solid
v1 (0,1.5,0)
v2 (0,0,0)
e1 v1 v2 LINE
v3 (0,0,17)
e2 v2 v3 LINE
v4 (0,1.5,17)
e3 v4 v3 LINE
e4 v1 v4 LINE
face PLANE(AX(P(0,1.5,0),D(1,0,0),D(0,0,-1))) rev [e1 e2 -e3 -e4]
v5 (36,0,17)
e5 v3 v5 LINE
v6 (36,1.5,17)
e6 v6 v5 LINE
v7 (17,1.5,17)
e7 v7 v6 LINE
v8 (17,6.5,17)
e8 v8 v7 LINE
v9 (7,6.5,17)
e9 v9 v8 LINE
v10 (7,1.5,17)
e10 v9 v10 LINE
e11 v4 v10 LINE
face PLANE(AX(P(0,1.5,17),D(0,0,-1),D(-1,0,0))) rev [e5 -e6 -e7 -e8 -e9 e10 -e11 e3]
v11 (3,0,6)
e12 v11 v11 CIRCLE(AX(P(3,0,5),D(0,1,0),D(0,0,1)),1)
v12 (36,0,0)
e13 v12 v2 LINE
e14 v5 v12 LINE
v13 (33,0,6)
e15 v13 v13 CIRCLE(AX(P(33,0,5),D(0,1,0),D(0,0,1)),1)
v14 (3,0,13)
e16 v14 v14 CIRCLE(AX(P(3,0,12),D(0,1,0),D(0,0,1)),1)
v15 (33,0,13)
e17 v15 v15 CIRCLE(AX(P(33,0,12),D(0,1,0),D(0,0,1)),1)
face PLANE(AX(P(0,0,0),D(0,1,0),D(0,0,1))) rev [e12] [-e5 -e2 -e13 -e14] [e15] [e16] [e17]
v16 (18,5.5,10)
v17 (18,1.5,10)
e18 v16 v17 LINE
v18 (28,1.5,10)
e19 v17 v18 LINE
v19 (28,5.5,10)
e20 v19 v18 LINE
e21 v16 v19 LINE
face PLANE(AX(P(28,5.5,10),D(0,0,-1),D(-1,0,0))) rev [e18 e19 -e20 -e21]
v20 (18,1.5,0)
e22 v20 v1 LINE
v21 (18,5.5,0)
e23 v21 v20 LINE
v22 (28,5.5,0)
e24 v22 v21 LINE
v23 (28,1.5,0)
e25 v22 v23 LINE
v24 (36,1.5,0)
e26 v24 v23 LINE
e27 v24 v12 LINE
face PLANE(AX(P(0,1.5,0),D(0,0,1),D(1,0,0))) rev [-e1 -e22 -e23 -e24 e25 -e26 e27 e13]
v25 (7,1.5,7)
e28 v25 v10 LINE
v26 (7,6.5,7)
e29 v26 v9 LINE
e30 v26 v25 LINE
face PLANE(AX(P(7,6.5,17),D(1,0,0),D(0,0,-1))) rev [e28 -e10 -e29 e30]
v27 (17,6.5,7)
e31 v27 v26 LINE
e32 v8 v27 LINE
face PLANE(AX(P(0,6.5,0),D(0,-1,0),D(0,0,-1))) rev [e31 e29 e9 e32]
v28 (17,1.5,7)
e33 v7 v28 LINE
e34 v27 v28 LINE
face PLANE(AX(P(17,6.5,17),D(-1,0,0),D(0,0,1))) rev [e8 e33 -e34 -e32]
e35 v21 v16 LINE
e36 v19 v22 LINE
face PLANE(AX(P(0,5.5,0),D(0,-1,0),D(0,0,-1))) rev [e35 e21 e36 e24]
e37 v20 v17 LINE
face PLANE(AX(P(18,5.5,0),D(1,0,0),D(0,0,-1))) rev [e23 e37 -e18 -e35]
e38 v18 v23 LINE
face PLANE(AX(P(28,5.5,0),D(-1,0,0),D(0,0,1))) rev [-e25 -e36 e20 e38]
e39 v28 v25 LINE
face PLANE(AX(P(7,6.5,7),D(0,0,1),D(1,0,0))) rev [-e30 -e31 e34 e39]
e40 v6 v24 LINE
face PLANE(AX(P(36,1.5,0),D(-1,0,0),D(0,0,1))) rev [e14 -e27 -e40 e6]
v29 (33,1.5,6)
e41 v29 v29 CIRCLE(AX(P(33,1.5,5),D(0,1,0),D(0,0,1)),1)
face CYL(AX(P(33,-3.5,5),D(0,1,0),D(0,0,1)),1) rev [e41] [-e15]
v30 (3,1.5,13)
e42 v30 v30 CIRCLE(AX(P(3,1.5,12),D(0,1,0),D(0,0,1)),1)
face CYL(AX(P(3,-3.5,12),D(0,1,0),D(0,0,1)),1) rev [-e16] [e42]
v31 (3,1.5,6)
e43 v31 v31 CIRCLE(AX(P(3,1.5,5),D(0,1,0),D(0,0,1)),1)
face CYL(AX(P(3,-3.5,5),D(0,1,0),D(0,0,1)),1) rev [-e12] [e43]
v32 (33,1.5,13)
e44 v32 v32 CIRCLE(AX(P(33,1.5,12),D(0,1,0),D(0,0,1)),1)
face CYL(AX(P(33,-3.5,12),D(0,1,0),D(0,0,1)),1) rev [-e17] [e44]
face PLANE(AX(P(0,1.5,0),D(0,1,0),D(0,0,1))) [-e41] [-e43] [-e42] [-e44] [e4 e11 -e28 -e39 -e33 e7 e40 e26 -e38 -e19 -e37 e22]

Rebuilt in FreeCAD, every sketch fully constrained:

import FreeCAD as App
import Part
import Sketcher

V = App.Vector

doc = App.newDocument("Part")
body = doc.addObject("PartDesign::Body", "Body")

sketch1 = body.newObject("Sketcher::SketchObject", "Sketch")
sketch1.AttachmentSupport = (doc.getObject("XZ_Plane"), [""])
sketch1.MapMode = "FlatFace"
sketch1.addGeometry([
    Part.LineSegment(V(0, 0, 0), V(0, 17, 0)),
    Part.LineSegment(V(0, 17, 0), V(36, 17, 0)),
    Part.LineSegment(V(36, 17, 0), V(36, 0, 0)),
    Part.LineSegment(V(36, 0, 0), V(0, 0, 0)),
], False)
sketch1.addConstraint([
    Sketcher.Constraint("Coincident", 0, 2, 1, 1),
    Sketcher.Constraint("Coincident", 1, 2, 2, 1),
    Sketcher.Constraint("Coincident", 2, 2, 3, 1),
    Sketcher.Constraint("Coincident", 3, 2, 0, 1),
    Sketcher.Constraint("Vertical", 0),
    Sketcher.Constraint("Horizontal", 1),
    Sketcher.Constraint("Vertical", 2),
    Sketcher.Constraint("Horizontal", 3),
    Sketcher.Constraint("Coincident", 3, 2, -1, 1),
    Sketcher.Constraint("DistanceX", 1, 1, 1, 2, 36.0),
    Sketcher.Constraint("DistanceY", 0, 1, 0, 2, 17.0),
])
pad1 = body.newObject("PartDesign::Pad", "Pad")
pad1.Profile = sketch1
pad1.Length = 1.5
pad1.Reversed = True

sketch2 = body.newObject("Sketcher::SketchObject", "Sketch001")
sketch2.AttachmentSupport = (doc.getObject("XZ_Plane"), [""])
sketch2.MapMode = "FlatFace"
sketch2.AttachmentOffset = App.Placement(V(0, 0, -1.5), App.Rotation())
sketch2.addGeometry([
    Part.LineSegment(V(18, 0, 0), V(18, 10, 0)),
    Part.LineSegment(V(18, 10, 0), V(28, 10, 0)),
    Part.LineSegment(V(28, 10, 0), V(28, 0, 0)),
    Part.LineSegment(V(28, 0, 0), V(18, 0, 0)),
], False)
sketch2.addConstraint([
    Sketcher.Constraint("Coincident", 0, 2, 1, 1),
    Sketcher.Constraint("Coincident", 1, 2, 2, 1),
    Sketcher.Constraint("Coincident", 2, 2, 3, 1),
    Sketcher.Constraint("Coincident", 3, 2, 0, 1),
    Sketcher.Constraint("Vertical", 0),
    Sketcher.Constraint("Horizontal", 1),
    Sketcher.Constraint("Vertical", 2),
    Sketcher.Constraint("Horizontal", 3),
    Sketcher.Constraint("PointOnObject", 2, 2, -1),
    Sketcher.Constraint("Equal", 3, 0),
    Sketcher.Constraint("DistanceX", 1, 1, 1, 2, 10.0),
    Sketcher.Constraint("DistanceX", -1, 1, 0, 2, 18.0),
])
pad2 = body.newObject("PartDesign::Pad", "Pad001")
pad2.Profile = sketch2
pad2.Length = 4
pad2.Reversed = True

sketch3 = body.newObject("Sketcher::SketchObject", "Sketch002")
sketch3.AttachmentSupport = (doc.getObject("XZ_Plane"), [""])
sketch3.MapMode = "FlatFace"
sketch3.AttachmentOffset = App.Placement(V(0, 0, -1.5), App.Rotation())
sketch3.addGeometry([
    Part.LineSegment(V(7, 7, 0), V(7, 17, 0)),
    Part.LineSegment(V(7, 17, 0), V(17, 17, 0)),
    Part.LineSegment(V(17, 17, 0), V(17, 7, 0)),
    Part.LineSegment(V(17, 7, 0), V(7, 7, 0)),
], False)
sketch3.addConstraint([
    Sketcher.Constraint("Coincident", 0, 2, 1, 1),
    Sketcher.Constraint("Coincident", 1, 2, 2, 1),
    Sketcher.Constraint("Coincident", 2, 2, 3, 1),
    Sketcher.Constraint("Coincident", 3, 2, 0, 1),
    Sketcher.Constraint("Vertical", 0),
    Sketcher.Constraint("Horizontal", 1),
    Sketcher.Constraint("Vertical", 2),
    Sketcher.Constraint("Horizontal", 3),
    Sketcher.Constraint("Equal", 3, 0),
    Sketcher.Constraint("DistanceX", 1, 1, 1, 2, 10.0),
    Sketcher.Constraint("DistanceX", -1, 1, 0, 2, 7.0),
    Sketcher.Constraint("DistanceY", -1, 1, 0, 2, 17.0),
])
pad3 = body.newObject("PartDesign::Pad", "Pad002")
pad3.Profile = sketch3
pad3.Length = 5
pad3.Reversed = True

sketch4 = body.newObject("Sketcher::SketchObject", "Sketch003")
sketch4.AttachmentSupport = (doc.getObject("XZ_Plane"), [""])
sketch4.MapMode = "FlatFace"
sketch4.AttachmentOffset = App.Placement(V(0, 0, -1.5), App.Rotation())
sketch4.addGeometry(Part.Circle(V(3, 5, 0), V(0, 0, 1), 1), False)
sketch4.addConstraint([
    Sketcher.Constraint("Diameter", 0, 2.0),
    Sketcher.Constraint("DistanceX", -1, 1, 0, 3, 3.0),
    Sketcher.Constraint("DistanceY", -1, 1, 0, 3, 5.0),
])
pocket1 = body.newObject("PartDesign::Pocket", "Pocket")
pocket1.Profile = sketch4
pocket1.Length = 5
pocket1.Reversed = True
doc.recompute()

linearpattern = body.newObject("PartDesign::LinearPattern", "LinearPattern")
linearpattern.Originals = [pocket1]
linearpattern.Direction = (doc.getObject("Z_Axis"), [""])
linearpattern.Mode = "offset"
linearpattern.Offset = 7
linearpattern.Occurrences = 2
body.Tip = linearpattern
doc.recompute()

linearpattern2 = body.newObject("PartDesign::LinearPattern", "LinearPattern001")
linearpattern2.Originals = [pocket1]
linearpattern2.Direction = (doc.getObject("X_Axis"), [""])
linearpattern2.Mode = "offset"
linearpattern2.Offset = 30
linearpattern2.Occurrences = 2
body.Tip = linearpattern2

sketch5 = body.newObject("Sketcher::SketchObject", "Sketch004")
sketch5.AttachmentSupport = (doc.getObject("XZ_Plane"), [""])
sketch5.MapMode = "FlatFace"
sketch5.AttachmentOffset = App.Placement(V(0, 0, -1.5), App.Rotation())
sketch5.addGeometry(Part.Circle(V(33, 12, 0), V(0, 0, 1), 1), False)
sketch5.addConstraint([
    Sketcher.Constraint("Diameter", 0, 2.0),
    Sketcher.Constraint("DistanceX", -1, 1, 0, 3, 33.0),
    Sketcher.Constraint("DistanceY", -1, 1, 0, 3, 12.0),
])
pocket2 = body.newObject("PartDesign::Pocket", "Pocket001")
pocket2.Profile = sketch5
pocket2.Length = 5
pocket2.Reversed = True

doc.recompute()
